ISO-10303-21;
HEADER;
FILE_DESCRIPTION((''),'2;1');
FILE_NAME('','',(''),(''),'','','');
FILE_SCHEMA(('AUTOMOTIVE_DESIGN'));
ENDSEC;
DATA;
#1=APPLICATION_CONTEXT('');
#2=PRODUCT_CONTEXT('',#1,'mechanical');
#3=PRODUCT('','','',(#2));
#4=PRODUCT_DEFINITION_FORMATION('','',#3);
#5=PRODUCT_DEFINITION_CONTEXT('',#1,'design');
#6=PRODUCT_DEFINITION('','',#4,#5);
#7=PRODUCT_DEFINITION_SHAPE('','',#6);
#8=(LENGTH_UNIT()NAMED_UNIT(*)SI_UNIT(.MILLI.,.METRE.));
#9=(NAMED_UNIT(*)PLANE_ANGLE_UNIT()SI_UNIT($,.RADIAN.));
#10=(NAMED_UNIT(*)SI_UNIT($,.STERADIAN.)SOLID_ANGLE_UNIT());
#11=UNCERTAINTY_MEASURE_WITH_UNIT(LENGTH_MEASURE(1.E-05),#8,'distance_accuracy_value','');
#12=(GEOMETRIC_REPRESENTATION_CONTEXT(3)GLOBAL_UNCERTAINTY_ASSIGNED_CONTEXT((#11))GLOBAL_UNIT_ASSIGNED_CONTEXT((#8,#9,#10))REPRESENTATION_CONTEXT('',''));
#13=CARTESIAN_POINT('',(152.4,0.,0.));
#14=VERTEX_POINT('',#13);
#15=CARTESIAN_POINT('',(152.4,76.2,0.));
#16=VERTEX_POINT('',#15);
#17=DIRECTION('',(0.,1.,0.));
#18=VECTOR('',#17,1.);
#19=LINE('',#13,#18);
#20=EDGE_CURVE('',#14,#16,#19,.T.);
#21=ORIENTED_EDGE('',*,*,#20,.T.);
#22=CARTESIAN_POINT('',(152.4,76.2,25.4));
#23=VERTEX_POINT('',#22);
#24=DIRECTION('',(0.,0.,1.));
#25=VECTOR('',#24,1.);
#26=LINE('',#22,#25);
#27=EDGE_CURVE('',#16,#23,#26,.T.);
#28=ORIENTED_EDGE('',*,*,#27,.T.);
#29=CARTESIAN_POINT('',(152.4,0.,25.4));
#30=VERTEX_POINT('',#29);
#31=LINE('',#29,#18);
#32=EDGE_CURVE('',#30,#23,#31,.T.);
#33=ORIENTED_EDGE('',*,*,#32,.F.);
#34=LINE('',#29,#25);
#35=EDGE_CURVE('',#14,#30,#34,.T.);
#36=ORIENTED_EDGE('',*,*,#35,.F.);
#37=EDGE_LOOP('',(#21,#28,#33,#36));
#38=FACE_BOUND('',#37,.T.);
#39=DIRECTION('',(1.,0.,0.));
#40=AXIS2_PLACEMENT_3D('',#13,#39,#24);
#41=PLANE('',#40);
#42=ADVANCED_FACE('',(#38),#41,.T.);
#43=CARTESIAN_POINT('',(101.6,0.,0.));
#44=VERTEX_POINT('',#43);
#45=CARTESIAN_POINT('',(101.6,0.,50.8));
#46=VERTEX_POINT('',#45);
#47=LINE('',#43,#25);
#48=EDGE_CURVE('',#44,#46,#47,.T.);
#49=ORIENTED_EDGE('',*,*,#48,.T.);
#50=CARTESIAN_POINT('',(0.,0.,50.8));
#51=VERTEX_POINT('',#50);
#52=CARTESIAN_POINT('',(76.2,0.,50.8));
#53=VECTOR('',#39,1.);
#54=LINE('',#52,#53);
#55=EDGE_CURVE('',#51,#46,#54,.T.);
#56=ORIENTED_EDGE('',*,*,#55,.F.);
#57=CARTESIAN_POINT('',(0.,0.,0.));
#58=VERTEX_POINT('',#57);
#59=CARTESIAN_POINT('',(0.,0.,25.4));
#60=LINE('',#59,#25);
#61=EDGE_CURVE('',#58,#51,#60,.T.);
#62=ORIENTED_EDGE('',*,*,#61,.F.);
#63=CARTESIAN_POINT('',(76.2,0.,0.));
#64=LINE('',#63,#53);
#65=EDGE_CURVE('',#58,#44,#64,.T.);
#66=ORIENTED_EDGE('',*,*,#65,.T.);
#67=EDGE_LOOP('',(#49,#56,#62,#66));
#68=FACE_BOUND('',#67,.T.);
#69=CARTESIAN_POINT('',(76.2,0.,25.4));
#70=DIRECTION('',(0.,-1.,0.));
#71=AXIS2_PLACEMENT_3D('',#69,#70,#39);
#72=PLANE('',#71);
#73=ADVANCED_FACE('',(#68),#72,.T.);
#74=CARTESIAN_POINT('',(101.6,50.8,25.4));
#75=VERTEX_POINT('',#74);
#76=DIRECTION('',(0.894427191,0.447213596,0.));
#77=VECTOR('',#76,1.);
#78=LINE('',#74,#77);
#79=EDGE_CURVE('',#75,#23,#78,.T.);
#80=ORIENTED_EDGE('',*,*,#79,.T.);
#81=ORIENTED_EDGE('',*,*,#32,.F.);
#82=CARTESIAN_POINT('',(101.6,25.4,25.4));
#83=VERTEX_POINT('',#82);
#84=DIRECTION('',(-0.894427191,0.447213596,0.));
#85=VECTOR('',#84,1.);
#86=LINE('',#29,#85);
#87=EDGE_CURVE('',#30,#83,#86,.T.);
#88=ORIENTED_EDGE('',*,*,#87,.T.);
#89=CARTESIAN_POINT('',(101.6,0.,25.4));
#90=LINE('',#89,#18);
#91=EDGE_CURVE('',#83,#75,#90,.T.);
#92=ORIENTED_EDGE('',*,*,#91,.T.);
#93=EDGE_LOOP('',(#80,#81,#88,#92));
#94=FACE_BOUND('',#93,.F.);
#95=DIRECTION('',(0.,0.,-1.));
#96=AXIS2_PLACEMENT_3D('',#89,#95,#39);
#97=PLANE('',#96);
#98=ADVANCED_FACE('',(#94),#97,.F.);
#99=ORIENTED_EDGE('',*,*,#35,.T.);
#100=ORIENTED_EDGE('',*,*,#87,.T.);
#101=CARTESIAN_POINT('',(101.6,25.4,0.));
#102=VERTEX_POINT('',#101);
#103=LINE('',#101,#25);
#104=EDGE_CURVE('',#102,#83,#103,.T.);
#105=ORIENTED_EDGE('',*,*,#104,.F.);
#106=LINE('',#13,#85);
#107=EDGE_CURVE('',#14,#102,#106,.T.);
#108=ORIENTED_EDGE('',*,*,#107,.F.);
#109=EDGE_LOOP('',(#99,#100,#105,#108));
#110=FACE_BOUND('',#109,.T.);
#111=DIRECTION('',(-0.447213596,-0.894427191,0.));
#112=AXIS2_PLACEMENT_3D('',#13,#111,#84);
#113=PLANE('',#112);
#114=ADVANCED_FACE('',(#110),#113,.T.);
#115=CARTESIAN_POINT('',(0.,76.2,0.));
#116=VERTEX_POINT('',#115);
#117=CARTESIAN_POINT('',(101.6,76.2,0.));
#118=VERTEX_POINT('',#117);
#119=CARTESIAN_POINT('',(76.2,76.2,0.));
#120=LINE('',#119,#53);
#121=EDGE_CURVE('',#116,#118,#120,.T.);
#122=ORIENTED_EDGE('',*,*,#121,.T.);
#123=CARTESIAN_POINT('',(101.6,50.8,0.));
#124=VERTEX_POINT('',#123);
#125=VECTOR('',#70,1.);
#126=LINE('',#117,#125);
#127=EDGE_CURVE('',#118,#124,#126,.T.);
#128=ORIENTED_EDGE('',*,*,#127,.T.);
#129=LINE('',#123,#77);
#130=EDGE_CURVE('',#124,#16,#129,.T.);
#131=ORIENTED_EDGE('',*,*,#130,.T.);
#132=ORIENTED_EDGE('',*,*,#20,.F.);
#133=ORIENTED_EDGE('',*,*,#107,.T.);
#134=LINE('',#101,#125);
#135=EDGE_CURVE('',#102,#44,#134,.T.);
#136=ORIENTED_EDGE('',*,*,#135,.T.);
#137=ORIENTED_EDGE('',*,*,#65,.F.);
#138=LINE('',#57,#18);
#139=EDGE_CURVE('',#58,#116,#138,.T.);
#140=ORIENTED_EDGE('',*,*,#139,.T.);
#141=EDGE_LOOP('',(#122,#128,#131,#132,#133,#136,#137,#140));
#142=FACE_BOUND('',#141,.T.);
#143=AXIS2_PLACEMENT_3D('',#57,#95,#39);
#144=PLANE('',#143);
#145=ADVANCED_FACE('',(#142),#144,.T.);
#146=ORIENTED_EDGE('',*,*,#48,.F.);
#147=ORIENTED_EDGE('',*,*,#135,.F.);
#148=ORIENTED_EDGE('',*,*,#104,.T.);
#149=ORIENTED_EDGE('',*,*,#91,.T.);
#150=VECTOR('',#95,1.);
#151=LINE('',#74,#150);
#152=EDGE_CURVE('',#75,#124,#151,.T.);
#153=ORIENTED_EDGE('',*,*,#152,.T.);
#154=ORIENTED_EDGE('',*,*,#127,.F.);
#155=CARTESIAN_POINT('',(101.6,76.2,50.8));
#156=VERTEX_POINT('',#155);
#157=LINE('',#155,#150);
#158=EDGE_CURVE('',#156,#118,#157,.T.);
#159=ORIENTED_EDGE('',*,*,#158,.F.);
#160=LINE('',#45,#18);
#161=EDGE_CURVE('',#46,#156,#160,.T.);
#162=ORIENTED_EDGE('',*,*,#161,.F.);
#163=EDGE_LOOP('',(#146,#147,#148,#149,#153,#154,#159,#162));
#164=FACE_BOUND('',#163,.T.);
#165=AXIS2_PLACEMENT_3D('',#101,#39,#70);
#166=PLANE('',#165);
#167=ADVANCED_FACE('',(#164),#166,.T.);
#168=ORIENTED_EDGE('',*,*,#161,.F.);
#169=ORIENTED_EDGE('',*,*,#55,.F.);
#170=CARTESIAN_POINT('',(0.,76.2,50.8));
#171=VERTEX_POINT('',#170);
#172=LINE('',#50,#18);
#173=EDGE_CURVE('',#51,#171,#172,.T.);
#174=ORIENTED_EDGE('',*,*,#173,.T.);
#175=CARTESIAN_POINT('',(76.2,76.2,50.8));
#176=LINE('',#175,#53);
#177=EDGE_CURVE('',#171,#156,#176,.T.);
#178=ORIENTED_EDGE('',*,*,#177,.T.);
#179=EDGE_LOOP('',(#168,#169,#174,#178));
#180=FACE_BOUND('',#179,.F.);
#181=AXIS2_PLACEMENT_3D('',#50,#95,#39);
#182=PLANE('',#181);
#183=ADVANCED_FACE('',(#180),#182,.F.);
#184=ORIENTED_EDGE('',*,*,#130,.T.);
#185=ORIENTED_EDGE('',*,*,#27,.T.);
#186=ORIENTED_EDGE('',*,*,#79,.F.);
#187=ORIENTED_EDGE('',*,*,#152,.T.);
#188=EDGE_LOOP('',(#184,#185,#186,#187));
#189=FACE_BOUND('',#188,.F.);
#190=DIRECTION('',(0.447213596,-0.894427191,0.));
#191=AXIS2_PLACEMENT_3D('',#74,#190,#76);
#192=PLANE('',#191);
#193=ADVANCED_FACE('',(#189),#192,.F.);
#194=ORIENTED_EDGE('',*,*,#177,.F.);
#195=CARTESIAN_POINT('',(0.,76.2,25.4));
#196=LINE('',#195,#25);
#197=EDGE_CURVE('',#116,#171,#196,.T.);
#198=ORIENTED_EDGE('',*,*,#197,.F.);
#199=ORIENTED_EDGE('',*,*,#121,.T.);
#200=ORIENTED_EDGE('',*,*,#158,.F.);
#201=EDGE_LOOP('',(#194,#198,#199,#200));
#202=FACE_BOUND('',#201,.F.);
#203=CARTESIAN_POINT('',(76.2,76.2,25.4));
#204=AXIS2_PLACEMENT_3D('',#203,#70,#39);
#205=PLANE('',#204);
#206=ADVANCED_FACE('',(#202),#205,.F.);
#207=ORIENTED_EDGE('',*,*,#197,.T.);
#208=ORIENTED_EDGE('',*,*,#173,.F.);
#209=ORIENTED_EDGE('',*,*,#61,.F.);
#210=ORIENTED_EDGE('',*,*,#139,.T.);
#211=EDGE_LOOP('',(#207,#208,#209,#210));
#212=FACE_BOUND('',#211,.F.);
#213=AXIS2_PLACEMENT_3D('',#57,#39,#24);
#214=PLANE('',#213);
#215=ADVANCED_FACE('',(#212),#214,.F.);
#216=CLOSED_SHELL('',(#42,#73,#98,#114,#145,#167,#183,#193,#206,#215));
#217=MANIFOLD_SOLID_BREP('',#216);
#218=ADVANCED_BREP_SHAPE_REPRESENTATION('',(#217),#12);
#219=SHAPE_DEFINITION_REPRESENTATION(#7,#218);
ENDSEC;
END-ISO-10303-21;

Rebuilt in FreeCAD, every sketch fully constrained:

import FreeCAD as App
import Part
import Sketcher

V = App.Vector
Q = App.Units.Quantity


def add_polygon(sketch, points):
    """Adds a closed chain of lines whose ends are joined by coincident constraints."""
    first, n = sketch.GeometryCount, len(points)
    for a, b in zip(points, points[1:] + points[:1]):
        sketch.addGeometry(Part.LineSegment(App.Vector(*a, 0), App.Vector(*b, 0)), False)
    for i in range(n):
        sketch.addConstraint(Sketcher.Constraint("Coincident", first + i, 2, first + (i + 1) % n, 1))

doc = App.newDocument("Part")
body = doc.addObject("PartDesign::Body", "Body")

# Sketch on XZ plane
sketch1 = body.newObject("Sketcher::SketchObject", "Sketch")
sketch1.AttachmentSupport = (doc.getObject("XZ_Plane"), [""])
sketch1.MapMode = "FlatFace"
add_polygon(sketch1, [(0, 51), (0, 0), (152, 0), (152, 51)])  # lines 0-3
sketch1.addConstraint(Sketcher.Constraint("Vertical", 0))
sketch1.addConstraint(Sketcher.Constraint("Horizontal", 1))
sketch1.addConstraint(Sketcher.Constraint("Vertical", 2))
sketch1.addConstraint(Sketcher.Constraint("Horizontal", 3))
sketch1.addConstraint(Sketcher.Constraint("Coincident", 0, 2, -1, 1))
sketch1.addConstraint(Sketcher.Constraint("DistanceX", 1, 1, 1, 2, Q("6 in")))
sketch1.addConstraint(Sketcher.Constraint("DistanceY", 0, 2, 0, 1, Q("2 in")))
pad1 = body.newObject("PartDesign::Pad", "Pad")
pad1.Profile = sketch1
pad1.Length = Q("3 in")
pad1.Reversed = True

# Sketch on XZ plane
sketch2 = body.newObject("Sketcher::SketchObject", "Sketch001")
sketch2.AttachmentSupport = (doc.getObject("XZ_Plane"), [""])
sketch2.MapMode = "FlatFace"
add_polygon(sketch2, [(102, 51), (102, 25), (152, 25), (152, 51)])  # lines 0-3
sketch2.addConstraint(Sketcher.Constraint("Vertical", 0))
sketch2.addConstraint(Sketcher.Constraint("Horizontal", 1))
sketch2.addConstraint(Sketcher.Constraint("Vertical", 2))
sketch2.addConstraint(Sketcher.Constraint("Horizontal", 3))
sketch2.addConstraint(Sketcher.Constraint("DistanceX", 1, 1, 1, 2, Q("2 in")))
sketch2.addConstraint(Sketcher.Constraint("DistanceY", 0, 2, 0, 1, Q("1 in")))
sketch2.addConstraint(Sketcher.Constraint("DistanceX", -1, 1, 0, 2, Q("4 in")))
sketch2.addConstraint(Sketcher.Constraint("DistanceY", -1, 1, 0, 2, Q("1 in")))
pocket1 = body.newObject("PartDesign::Pocket", "Pocket")
pocket1.Profile = sketch2
pocket1.Length = Q("3 in")

# Sketch on XY plane
sketch3 = body.newObject("Sketcher::SketchObject", "Sketch002")
sketch3.AttachmentSupport = (doc.getObject("XY_Plane"), [""])
sketch3.MapMode = "FlatFace"
add_polygon(sketch3, [(102, 25), (102, 0), (152, 0)])  # lines 0-2
sketch3.addConstraint(Sketcher.Constraint("Vertical", 0))
sketch3.addConstraint(Sketcher.Constraint("Horizontal", 1))
sketch3.addConstraint(Sketcher.Constraint("PointOnObject", 0, 2, -1))
sketch3.addConstraint(Sketcher.Constraint("DistanceX", 1, 1, 1, 2, Q("2 in")))
sketch3.addConstraint(Sketcher.Constraint("DistanceY", 0, 2, 0, 1, Q("1 in")))
sketch3.addConstraint(Sketcher.Constraint("DistanceX", -1, 1, 0, 2, Q("4 in")))
pocket2 = body.newObject("PartDesign::Pocket", "Pocket001")
pocket2.Profile = sketch3
pocket2.Length = Q("1 in")
pocket2.Reversed = True

# Sketch on XY plane
sketch4 = body.newObject("Sketcher::SketchObject", "Sketch003")
sketch4.AttachmentSupport = (doc.getObject("XY_Plane"), [""])
sketch4.MapMode = "FlatFace"
sketch4.AttachmentOffset = App.Placement(V(0, 0, 1 * 25.4), App.Rotation())
add_polygon(sketch4, [(152, 76), (102, 76), (102, 51)])  # lines 0-2
sketch4.addConstraint(Sketcher.Constraint("Horizontal", 0))
sketch4.addConstraint(Sketcher.Constraint("Vertical", 1))
sketch4.addConstraint(Sketcher.Constraint("DistanceX", 0, 2, 0, 1, Q("2 in")))
sketch4.addConstraint(Sketcher.Constraint("DistanceY", 1, 2, 1, 1, Q("1 in")))
sketch4.addConstraint(Sketcher.Constraint("DistanceX", -1, 1, 0, 2, Q("4 in")))
sketch4.addConstraint(Sketcher.Constraint("DistanceY", -1, 1, 0, 2, Q("3 in")))
pocket3 = body.newObject("PartDesign::Pocket", "Pocket002")
pocket3.Profile = sketch4
pocket3.Length = Q("1 in")

doc.recompute()
